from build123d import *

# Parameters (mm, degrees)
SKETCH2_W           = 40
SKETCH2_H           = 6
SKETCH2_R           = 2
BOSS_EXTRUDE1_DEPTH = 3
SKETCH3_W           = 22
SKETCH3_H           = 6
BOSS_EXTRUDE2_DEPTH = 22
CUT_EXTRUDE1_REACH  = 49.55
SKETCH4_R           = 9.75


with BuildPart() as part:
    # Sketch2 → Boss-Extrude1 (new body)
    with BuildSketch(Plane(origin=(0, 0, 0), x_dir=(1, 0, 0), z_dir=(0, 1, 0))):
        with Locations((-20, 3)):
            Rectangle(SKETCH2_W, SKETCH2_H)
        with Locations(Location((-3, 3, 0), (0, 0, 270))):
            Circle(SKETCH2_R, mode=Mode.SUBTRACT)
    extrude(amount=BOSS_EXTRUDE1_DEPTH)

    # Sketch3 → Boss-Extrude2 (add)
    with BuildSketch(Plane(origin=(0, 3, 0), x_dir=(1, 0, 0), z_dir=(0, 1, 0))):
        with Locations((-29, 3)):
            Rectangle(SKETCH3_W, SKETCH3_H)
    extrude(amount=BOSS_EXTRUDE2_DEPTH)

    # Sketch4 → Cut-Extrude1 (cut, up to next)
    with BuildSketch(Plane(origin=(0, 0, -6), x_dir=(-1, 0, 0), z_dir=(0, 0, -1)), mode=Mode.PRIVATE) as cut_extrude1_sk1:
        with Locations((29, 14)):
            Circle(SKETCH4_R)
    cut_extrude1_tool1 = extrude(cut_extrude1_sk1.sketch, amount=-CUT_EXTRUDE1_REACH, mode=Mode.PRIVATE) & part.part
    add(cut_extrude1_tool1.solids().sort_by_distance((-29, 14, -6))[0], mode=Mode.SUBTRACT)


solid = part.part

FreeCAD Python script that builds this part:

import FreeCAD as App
import Part
import Sketcher


def add_polygon(sketch, points):
    """Adds a closed chain of lines whose ends are joined by coincident constraints."""
    first, n = sketch.GeometryCount, len(points)
    for a, b in zip(points, points[1:] + points[:1]):
        sketch.addGeometry(Part.LineSegment(App.Vector(*a, 0), App.Vector(*b, 0)), False)
    for i in range(n):
        sketch.addConstraint(Sketcher.Constraint("Coincident", first + i, 2, first + (i + 1) % n, 1))

doc = App.newDocument("Part")
params = doc.addObject("Spreadsheet::Sheet", "Params")
for row, (alias, value) in enumerate([
    ("sketch1_diameter", "4 mm"),
    ("sketch1_width", "40 mm"),
    ("sketch1_height", "6 mm"),
    ("pad1_length", "3 mm"),
    ("sketch2_width", "22 mm"),
    ("sketch2_height", "6 mm"),
    ("pad2_length", "22 mm"),
    ("sketch3_diameter", "19.5 mm"),
], start=1):
    params.set(f"A{row}", alias)
    params.set(f"B{row}", "=" + value)
    params.setAlias(f"B{row}", alias)

body = doc.addObject("PartDesign::Body", "Body")

sketch1 = doc.addObject("Sketcher::SketchObject", "Sketch")
body.addObject(sketch1)
sketch1.AttachmentSupport = (doc.XZ_Plane, [""])
sketch1.MapMode = "FlatFace"
add_polygon(sketch1, [(-40, -6), (-40, 0), (0, 0), (0, -6)])
sketch1.addGeometry(Part.Circle(App.Vector(-3, -3, 0), App.Vector(0, 0, 1), 2), False)
sketch1.addConstraint(Sketcher.Constraint("Vertical", 0))
sketch1.addConstraint(Sketcher.Constraint("Horizontal", 1))
sketch1.addConstraint(Sketcher.Constraint("Vertical", 2))
sketch1.addConstraint(Sketcher.Constraint("Horizontal", 3))
sketch1.addConstraint(Sketcher.Constraint("Coincident", 1, 2, -1, 1))
sketch1.addConstraint(Sketcher.Constraint("Diameter", 4, 4.0))
sketch1.addConstraint(Sketcher.Constraint("DistanceX", 1, 1, 1, 2, 40.0))
sketch1.addConstraint(Sketcher.Constraint("DistanceY", 0, 1, 0, 2, 6.0))
sketch1.addConstraint(Sketcher.Constraint("DistanceX", 4, 3, -1, 1, 3.0))
sketch1.addConstraint(Sketcher.Constraint("DistanceY", 4, 3, -1, 1, 3.0))
sketch1.setExpression("Constraints[9]", "Params.sketch1_diameter")
sketch1.setExpression("Constraints[10]", "Params.sketch1_width")
sketch1.setExpression("Constraints[11]", "Params.sketch1_height")
pad1 = doc.addObject("PartDesign::Pad", "Pad")
body.addObject(pad1)
pad1.Profile = sketch1
pad1.setExpression("Length", "Params.pad1_length")
pad1.Reversed = True

sketch2 = doc.addObject("Sketcher::SketchObject", "Sketch001")
body.addObject(sketch2)
sketch2.AttachmentSupport = (doc.XZ_Plane, [""])
sketch2.MapMode = "FlatFace"
sketch2.AttachmentOffset = App.Placement(App.Vector(0, 0, -3), App.Rotation())
add_polygon(sketch2, [(-40, -6), (-40, 0), (-18, 0), (-18, -6)])
sketch2.addConstraint(Sketcher.Constraint("Vertical", 0))
sketch2.addConstraint(Sketcher.Constraint("Horizontal", 1))
sketch2.addConstraint(Sketcher.Constraint("Vertical", 2))
sketch2.addConstraint(Sketcher.Constraint("Horizontal", 3))
sketch2.addConstraint(Sketcher.Constraint("PointOnObject", 0, 2, -1))
sketch2.addConstraint(Sketcher.Constraint("DistanceX", 1, 1, 1, 2, 22.0))
sketch2.addConstraint(Sketcher.Constraint("DistanceY", 0, 1, 0, 2, 6.0))
sketch2.addConstraint(Sketcher.Constraint("DistanceX", 0, 2, -1, 1, 40.0))
sketch2.setExpression("Constraints[9]", "Params.sketch2_width")
sketch2.setExpression("Constraints[10]", "Params.sketch2_height")
pad2 = doc.addObject("PartDesign::Pad", "Pad001")
body.addObject(pad2)
pad2.Profile = sketch2
pad2.setExpression("Length", "Params.pad2_length")
pad2.Reversed = True

sketch3 = doc.addObject("Sketcher::SketchObject", "Sketch002")
body.addObject(sketch3)
sketch3.AttachmentSupport = (doc.XY_Plane, [""])
sketch3.MapMode = "FlatFace"
sketch3.AttachmentOffset = App.Placement(App.Vector(0, 0, -6), App.Rotation())
sketch3.addGeometry(Part.Circle(App.Vector(-29, 14, 0), App.Vector(0, 0, 1), 10), False)
sketch3.addConstraint(Sketcher.Constraint("Diameter", 0, 19.5))
sketch3.addConstraint(Sketcher.Constraint("DistanceX", 0, 3, -1, 1, 29.0))
sketch3.addConstraint(Sketcher.Constraint("DistanceY", -1, 1, 0, 3, 14.0))
sketch3.setExpression("Constraints[0]", "Params.sketch3_diameter")
pocket1 = doc.addObject("PartDesign::Pocket", "Pocket")
body.addObject(pocket1)
pocket1.Profile = sketch3
pocket1.Type = "UpToFirst"
pocket1.Reversed = True

doc.recompute()
